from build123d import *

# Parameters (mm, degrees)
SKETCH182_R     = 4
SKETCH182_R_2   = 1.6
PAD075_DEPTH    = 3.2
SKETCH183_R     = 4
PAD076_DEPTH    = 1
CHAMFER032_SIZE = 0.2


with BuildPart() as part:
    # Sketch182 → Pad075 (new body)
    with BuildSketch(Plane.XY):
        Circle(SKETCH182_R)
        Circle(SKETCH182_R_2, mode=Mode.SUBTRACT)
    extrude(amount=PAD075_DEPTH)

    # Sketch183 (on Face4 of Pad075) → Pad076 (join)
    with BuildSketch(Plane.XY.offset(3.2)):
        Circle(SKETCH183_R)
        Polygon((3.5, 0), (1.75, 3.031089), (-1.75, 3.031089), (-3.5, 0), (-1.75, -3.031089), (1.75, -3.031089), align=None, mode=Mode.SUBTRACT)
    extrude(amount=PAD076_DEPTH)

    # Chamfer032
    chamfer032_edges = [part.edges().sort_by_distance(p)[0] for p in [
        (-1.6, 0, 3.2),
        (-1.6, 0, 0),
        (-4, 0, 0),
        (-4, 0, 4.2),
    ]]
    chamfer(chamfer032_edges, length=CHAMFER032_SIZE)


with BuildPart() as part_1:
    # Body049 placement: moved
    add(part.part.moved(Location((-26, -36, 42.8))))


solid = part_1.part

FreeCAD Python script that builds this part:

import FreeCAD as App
import Part
import Sketcher
Q = App.Units.Quantity


def edges_at(feature, points):
    """Names of the edges that pass closest to the given points."""
    edges = feature.Shape.Edges
    near = lambda p: min(range(len(edges)), key=lambda i: edges[i].distToShape(Part.Vertex(*p))[0])
    return sorted({f"Edge{near(p) + 1}" for p in points})

doc = App.newDocument("Part")
body = doc.addObject("PartDesign::Body", "Body")

# Sketch on XY plane
sketch1 = body.newObject("Sketcher::SketchObject", "Sketch")
sketch1.AttachmentSupport = (doc.getObject("XY_Plane"), [""])
sketch1.MapMode = "FlatFace"
sketch1.addGeometry(Part.Circle(App.Vector(0, 0, 0), App.Vector(0, 0, 1), 4), False)
sketch1.addGeometry(Part.Circle(App.Vector(0, 0, 0), App.Vector(0, 0, 1), 1.6), False)
sketch1.addConstraint(Sketcher.Constraint("Coincident", 0, 3, -1, 1))
sketch1.addConstraint(Sketcher.Constraint("Coincident", 1, 3, -1, 1))
sketch1.addConstraint(Sketcher.Constraint("Diameter", 0, Q("8 mm")))
sketch1.addConstraint(Sketcher.Constraint("Diameter", 1, Q("3.2 mm")))
pad1 = body.newObject("PartDesign::Pad", "Pad")
pad1.Profile = sketch1
pad1.Length = 3.2

# Sketch on XY plane
sketch2 = body.newObject("Sketcher::SketchObject", "Sketch001")
sketch2.AttachmentSupport = (doc.getObject("XY_Plane"), [""])
sketch2.MapMode = "FlatFace"
sketch2.AttachmentOffset = App.Placement(App.Vector(0, 0, 3.2), App.Rotation())
sketch2.addGeometry(Part.Circle(App.Vector(0, 0, 0), App.Vector(0, 0, 1), 4), False)
sketch2.addGeometry(Part.LineSegment(App.Vector(1.8, 3, 0), App.Vector(3.5, 0, 0)), False)
sketch2.addGeometry(Part.LineSegment(App.Vector(3.5, 0, 0), App.Vector(1.8, -3, 0)), False)
sketch2.addGeometry(Part.LineSegment(App.Vector(1.8, -3, 0), App.Vector(-1.8, -3, 0)), False)
sketch2.addGeometry(Part.LineSegment(App.Vector(-1.8, -3, 0), App.Vector(-3.5, 0, 0)), False)
sketch2.addGeometry(Part.LineSegment(App.Vector(-3.5, 0, 0), App.Vector(-1.8, 3, 0)), False)
sketch2.addGeometry(Part.LineSegment(App.Vector(-1.8, 3, 0), App.Vector(1.8, 3, 0)), False)
sketch2.addConstraint(Sketcher.Constraint("Coincident", 1, 2, 2, 1))
sketch2.addConstraint(Sketcher.Constraint("Coincident", 2, 2, 3, 1))
sketch2.addConstraint(Sketcher.Constraint("Coincident", 3, 2, 4, 1))
sketch2.addConstraint(Sketcher.Constraint("Coincident", 4, 2, 5, 1))
sketch2.addConstraint(Sketcher.Constraint("Coincident", 5, 2, 6, 1))
sketch2.addConstraint(Sketcher.Constraint("Coincident", 6, 2, 1, 1))
sketch2.addConstraint(Sketcher.Constraint("Horizontal", 3))
sketch2.addConstraint(Sketcher.Constraint("Horizontal", 6))
sketch2.addConstraint(Sketcher.Constraint("Coincident", 0, 3, -1, 1))
sketch2.addConstraint(Sketcher.Constraint("Symmetric", 1, 2, 4, 2, -1, 1))
sketch2.addConstraint(Sketcher.Constraint("Symmetric", 2, 2, 5, 2, -1, 1))
sketch2.addConstraint(Sketcher.Constraint("PointOnObject", 1, 2, -1))
sketch2.addConstraint(Sketcher.Constraint("Parallel", 1, 4))
sketch2.addConstraint(Sketcher.Constraint("Vertical", 3, 2, 5, 2))
sketch2.addConstraint(Sketcher.Constraint("Diameter", 0, Q("8 mm")))
sketch2.addConstraint(Sketcher.Constraint("Angle", 1, Q("-60.000001 deg")))
sketch2.addConstraint(Sketcher.Constraint("DistanceX", 3, 2, 3, 1, Q("3.5 mm")))
sketch2.addConstraint(Sketcher.Constraint("DistanceX", 4, 2, 1, 2, Q("7 mm")))
pad2 = body.newObject("PartDesign::Pad", "Pad001")
pad2.Profile = sketch2
pad2.Length = 1
doc.recompute()

chamfer = body.newObject("PartDesign::Chamfer", "Chamfer")
chamfer.Base = (pad2, edges_at(pad2, [
    (-1.6, 0, 3.2),
    (-1.6, 0, 0),
    (-4, 0, 0),
    (-4, 0, 4.2),
]))
chamfer.Size = 0.2
body2 = doc.addObject("PartDesign::Body", "Body001")
doc.recompute()

body.Placement = App.Placement(App.Vector(-26, -36, 42.8), App.Rotation(App.Vector(0, 0, 1), 0))
boolean = body2.newObject("PartDesign::Boolean", "Boolean")
boolean.Type = "Fuse"
boolean.addObjects([body])

doc.recompute()
